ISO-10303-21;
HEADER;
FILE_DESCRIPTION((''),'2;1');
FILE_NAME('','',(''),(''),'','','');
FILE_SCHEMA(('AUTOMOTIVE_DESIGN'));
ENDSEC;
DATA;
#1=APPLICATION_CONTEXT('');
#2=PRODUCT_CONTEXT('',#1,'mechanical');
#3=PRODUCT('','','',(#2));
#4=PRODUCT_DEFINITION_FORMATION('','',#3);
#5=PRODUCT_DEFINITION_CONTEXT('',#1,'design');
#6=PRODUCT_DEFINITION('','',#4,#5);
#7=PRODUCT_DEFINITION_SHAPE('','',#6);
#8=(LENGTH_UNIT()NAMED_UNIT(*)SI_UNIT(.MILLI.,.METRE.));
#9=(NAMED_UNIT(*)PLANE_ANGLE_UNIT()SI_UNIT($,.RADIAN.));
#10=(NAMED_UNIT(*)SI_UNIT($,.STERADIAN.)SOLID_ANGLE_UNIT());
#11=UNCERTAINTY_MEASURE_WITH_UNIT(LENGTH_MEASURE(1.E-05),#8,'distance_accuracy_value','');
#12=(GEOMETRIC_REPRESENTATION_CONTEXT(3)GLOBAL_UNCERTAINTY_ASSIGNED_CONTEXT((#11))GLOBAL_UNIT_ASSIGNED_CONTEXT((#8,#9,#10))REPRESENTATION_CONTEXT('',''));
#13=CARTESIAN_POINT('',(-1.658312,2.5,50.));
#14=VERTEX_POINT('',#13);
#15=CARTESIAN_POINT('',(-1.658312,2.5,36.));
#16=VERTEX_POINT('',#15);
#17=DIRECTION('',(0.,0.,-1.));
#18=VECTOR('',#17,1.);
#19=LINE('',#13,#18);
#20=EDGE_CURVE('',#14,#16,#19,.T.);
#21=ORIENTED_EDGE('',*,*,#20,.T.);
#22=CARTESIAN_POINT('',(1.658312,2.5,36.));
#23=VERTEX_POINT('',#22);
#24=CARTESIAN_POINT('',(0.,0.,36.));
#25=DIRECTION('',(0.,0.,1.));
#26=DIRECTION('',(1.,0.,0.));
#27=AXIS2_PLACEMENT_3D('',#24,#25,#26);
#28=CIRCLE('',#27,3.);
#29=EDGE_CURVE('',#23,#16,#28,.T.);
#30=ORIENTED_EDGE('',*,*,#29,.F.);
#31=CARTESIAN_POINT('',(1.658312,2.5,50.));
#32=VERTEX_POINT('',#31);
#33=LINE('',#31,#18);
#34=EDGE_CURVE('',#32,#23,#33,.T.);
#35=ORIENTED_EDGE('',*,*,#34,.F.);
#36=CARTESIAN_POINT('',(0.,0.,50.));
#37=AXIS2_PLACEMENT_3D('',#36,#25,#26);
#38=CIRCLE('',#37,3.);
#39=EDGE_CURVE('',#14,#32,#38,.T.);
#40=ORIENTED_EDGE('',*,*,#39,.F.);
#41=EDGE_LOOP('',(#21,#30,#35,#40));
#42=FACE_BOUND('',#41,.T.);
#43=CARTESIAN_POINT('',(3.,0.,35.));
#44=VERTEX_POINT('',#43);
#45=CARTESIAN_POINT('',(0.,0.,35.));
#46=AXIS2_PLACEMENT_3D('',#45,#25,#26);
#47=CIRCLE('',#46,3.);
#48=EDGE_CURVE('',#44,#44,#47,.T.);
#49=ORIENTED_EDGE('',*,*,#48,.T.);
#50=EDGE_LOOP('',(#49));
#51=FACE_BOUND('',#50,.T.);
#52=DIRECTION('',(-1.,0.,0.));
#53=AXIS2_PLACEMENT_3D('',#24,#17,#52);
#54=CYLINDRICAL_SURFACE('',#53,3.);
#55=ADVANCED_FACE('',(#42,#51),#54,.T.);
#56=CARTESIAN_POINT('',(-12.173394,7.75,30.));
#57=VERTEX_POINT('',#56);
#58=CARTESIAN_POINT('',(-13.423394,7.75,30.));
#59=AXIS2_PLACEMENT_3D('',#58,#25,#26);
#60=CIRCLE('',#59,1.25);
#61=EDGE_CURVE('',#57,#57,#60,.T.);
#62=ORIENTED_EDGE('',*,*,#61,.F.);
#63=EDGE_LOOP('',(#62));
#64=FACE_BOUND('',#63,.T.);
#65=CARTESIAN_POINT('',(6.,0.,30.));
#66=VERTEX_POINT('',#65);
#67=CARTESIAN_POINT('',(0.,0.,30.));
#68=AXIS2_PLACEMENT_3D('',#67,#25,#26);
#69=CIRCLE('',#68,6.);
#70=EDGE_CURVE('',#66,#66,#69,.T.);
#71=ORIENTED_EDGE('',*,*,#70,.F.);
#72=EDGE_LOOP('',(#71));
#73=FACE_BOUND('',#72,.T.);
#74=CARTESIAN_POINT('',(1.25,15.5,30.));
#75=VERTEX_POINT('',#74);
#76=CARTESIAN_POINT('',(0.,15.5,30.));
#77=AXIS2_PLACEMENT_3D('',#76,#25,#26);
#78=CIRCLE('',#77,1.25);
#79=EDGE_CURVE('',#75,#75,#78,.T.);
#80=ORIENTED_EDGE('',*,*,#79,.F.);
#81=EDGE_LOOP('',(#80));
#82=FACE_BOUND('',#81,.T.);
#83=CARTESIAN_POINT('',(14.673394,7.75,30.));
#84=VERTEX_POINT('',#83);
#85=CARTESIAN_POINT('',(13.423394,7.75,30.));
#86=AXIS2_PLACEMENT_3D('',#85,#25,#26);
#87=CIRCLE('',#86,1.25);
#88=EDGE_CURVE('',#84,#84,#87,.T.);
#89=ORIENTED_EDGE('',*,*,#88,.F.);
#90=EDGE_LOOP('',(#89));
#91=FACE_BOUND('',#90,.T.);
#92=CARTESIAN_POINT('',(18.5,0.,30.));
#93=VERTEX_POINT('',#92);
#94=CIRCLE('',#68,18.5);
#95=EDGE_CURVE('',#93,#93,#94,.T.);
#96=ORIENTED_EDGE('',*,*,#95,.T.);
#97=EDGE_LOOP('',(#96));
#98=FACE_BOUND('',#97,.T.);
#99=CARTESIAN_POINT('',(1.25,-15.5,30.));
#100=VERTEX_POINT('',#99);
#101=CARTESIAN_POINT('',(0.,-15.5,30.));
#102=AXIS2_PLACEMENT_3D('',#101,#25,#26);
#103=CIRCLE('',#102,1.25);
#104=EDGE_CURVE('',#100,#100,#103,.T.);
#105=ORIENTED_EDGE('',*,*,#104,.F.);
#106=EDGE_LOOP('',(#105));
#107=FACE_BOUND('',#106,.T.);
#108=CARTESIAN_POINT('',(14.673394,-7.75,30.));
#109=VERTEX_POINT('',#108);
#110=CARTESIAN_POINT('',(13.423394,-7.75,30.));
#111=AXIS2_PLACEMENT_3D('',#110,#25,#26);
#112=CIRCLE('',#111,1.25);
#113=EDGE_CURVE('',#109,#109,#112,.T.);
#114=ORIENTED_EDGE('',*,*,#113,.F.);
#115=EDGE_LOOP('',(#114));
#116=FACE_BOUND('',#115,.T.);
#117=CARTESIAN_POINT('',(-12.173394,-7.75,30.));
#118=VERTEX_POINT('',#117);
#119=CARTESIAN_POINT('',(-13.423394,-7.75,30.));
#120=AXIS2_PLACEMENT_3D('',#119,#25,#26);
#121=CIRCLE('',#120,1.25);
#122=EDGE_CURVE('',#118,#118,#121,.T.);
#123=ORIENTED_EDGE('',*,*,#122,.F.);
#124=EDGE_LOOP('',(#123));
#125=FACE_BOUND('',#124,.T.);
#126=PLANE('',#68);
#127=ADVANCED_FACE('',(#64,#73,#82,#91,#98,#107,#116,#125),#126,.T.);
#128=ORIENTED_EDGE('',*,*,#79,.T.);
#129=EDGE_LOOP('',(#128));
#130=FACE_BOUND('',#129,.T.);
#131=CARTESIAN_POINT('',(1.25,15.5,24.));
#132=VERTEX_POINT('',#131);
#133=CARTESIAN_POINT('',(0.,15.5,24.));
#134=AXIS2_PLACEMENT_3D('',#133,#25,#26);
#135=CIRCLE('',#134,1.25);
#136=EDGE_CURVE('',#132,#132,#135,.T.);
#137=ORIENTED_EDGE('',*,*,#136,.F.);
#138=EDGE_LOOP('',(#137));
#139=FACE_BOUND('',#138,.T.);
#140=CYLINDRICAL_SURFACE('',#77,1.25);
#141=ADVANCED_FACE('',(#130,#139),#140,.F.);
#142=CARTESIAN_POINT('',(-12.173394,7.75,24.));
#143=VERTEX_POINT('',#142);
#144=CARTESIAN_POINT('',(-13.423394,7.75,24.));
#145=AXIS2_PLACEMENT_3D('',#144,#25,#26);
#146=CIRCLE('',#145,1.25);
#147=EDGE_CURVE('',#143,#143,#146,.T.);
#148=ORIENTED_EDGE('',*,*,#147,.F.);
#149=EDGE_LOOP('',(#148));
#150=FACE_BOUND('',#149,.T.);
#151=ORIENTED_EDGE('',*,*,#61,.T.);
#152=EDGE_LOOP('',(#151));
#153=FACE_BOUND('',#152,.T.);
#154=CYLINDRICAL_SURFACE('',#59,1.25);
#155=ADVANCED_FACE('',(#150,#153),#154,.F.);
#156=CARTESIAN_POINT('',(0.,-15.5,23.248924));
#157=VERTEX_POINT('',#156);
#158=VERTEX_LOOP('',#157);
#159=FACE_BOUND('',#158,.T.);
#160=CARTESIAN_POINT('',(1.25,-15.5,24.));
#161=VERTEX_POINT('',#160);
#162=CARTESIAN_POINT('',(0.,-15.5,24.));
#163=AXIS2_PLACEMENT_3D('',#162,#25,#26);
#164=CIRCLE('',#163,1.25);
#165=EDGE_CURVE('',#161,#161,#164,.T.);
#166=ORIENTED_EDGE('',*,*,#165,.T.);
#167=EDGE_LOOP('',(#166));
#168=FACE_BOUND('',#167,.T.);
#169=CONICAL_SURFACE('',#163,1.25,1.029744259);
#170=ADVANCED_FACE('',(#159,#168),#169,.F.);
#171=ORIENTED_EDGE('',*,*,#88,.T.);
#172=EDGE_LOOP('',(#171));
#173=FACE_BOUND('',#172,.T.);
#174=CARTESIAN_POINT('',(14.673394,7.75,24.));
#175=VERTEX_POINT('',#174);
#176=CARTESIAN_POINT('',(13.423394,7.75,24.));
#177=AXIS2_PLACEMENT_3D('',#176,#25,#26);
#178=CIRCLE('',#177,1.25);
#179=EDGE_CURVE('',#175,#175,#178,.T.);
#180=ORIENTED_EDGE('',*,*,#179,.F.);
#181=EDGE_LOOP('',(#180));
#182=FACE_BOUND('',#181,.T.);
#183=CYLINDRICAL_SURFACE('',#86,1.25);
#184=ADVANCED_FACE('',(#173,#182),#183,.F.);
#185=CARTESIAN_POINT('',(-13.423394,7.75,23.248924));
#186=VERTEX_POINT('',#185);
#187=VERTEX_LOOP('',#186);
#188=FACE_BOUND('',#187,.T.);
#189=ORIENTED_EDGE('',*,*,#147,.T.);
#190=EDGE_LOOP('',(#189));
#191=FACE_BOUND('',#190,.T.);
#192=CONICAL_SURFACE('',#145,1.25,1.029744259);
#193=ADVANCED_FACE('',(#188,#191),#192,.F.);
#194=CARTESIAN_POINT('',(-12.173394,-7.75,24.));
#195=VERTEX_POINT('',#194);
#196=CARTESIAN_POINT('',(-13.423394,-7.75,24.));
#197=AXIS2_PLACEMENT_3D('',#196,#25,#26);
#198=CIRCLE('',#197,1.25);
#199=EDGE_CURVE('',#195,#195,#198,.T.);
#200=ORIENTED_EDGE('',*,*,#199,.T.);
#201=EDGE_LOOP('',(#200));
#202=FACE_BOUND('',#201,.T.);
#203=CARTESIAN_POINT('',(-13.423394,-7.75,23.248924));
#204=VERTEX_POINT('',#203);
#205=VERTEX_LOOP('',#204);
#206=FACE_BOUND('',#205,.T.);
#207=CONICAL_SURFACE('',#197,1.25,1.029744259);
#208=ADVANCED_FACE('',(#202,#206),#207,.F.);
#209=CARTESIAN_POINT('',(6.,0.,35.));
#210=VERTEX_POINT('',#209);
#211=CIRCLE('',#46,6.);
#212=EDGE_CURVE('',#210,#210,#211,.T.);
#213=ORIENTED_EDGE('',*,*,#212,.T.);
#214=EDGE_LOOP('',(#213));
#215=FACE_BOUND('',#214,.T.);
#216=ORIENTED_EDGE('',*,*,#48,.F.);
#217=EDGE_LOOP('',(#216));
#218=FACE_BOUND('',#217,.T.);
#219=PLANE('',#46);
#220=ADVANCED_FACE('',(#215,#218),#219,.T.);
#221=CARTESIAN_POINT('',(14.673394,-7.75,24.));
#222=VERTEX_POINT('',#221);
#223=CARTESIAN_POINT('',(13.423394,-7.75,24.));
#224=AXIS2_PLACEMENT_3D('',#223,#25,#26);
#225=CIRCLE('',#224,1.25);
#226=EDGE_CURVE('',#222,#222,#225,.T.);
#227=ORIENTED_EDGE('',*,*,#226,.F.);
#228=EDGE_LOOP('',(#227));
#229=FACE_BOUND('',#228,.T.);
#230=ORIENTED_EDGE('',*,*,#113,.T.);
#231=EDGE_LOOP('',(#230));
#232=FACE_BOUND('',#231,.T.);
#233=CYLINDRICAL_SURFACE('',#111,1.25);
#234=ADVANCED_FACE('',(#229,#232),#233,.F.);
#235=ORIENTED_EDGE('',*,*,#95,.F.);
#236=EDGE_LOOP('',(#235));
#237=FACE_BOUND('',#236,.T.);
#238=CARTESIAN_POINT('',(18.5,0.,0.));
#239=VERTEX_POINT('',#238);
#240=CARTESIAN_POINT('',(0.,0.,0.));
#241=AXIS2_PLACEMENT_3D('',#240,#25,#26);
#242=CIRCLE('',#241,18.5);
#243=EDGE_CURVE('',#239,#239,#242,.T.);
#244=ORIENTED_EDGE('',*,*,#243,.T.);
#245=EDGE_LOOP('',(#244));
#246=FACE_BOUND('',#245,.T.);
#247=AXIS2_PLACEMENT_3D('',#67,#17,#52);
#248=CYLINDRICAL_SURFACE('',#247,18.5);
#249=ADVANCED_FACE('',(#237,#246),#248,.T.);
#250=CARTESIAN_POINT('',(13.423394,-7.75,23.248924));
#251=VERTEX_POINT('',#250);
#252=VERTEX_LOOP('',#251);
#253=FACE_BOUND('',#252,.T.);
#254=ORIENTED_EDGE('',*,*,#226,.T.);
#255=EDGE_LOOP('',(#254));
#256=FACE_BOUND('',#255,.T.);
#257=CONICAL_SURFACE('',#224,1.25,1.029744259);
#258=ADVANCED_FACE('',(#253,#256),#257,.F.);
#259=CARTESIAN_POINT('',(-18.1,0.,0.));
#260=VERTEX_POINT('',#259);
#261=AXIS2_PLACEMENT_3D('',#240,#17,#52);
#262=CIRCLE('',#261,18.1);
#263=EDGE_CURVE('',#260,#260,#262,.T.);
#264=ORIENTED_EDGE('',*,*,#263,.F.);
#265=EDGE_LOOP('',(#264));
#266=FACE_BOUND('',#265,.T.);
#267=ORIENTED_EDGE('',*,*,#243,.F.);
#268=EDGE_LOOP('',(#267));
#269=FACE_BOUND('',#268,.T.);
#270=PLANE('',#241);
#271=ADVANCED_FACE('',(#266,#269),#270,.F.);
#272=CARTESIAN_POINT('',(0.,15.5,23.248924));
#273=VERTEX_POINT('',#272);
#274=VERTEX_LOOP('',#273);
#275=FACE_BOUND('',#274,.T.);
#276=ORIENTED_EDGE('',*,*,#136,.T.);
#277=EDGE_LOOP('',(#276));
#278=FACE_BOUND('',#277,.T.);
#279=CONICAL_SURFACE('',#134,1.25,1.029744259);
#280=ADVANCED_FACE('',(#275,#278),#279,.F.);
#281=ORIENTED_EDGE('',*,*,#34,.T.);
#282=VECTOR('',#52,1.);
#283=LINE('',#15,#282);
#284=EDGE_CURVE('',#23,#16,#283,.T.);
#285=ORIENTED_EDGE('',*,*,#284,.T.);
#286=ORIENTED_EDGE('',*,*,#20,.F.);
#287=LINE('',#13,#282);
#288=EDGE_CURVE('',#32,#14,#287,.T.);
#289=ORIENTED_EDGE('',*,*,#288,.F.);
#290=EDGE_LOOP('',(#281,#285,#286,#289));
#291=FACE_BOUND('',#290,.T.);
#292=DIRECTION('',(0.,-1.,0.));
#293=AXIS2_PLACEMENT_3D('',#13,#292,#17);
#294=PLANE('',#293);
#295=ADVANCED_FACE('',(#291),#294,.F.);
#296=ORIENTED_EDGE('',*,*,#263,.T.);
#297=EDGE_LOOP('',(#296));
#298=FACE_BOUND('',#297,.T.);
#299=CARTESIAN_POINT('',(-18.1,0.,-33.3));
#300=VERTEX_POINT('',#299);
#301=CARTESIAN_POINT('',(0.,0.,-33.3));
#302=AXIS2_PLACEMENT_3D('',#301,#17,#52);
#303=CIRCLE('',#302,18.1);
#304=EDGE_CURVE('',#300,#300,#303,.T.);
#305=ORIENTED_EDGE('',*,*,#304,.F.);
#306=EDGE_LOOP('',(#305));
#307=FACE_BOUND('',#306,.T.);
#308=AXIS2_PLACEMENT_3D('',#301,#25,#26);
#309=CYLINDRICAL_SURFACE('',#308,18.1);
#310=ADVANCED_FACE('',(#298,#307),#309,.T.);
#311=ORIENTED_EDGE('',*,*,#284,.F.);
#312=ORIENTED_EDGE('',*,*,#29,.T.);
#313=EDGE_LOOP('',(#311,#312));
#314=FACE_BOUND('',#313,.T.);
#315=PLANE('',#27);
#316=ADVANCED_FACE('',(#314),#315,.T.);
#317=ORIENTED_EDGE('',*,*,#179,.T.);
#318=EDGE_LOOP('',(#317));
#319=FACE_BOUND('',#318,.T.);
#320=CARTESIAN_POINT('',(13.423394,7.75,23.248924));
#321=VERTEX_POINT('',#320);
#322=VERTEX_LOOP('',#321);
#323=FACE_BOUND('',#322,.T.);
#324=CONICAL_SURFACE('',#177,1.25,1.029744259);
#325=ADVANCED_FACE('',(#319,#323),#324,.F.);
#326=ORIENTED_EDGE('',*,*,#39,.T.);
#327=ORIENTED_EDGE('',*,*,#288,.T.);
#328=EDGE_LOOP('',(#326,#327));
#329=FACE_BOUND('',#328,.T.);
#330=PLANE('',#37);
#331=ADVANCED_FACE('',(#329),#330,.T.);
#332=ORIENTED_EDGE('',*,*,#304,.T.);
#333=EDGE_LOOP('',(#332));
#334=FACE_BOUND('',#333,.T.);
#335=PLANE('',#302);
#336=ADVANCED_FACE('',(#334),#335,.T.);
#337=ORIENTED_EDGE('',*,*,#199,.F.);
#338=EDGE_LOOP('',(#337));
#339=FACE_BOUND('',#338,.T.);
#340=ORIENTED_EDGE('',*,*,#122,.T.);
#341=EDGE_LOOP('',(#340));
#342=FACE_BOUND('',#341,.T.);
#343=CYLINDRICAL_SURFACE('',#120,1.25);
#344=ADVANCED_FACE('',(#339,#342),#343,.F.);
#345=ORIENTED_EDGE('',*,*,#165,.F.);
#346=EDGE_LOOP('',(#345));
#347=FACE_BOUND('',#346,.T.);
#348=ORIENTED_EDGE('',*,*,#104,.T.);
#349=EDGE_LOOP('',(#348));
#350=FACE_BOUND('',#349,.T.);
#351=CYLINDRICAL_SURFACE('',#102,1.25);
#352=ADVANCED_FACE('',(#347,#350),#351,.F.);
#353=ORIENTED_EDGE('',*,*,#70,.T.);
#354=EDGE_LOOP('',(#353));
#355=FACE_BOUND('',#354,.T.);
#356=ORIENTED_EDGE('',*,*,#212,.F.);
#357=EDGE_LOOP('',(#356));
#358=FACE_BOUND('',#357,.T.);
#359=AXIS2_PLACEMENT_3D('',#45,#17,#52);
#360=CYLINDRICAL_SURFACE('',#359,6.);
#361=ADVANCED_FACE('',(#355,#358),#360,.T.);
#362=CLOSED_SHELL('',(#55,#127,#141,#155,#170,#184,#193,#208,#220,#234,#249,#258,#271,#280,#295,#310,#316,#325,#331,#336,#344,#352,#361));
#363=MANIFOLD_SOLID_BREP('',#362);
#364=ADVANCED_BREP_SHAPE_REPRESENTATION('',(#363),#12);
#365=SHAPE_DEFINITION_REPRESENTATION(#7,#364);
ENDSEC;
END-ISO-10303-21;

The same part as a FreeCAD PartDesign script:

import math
import FreeCAD as App
import Part
import Sketcher

V = App.Vector

doc = App.newDocument("Part")
body = doc.addObject("PartDesign::Body", "Body")

# Sketch on XY plane
sketch1 = body.newObject("Sketcher::SketchObject", "Sketch")
sketch1.AttachmentSupport = (doc.getObject("XY_Plane"), [""])
sketch1.MapMode = "FlatFace"
sketch1.addGeometry(Part.Circle(V(0, 0, 0), V(0, 0, 1), 18.5), False)
sketch1.addConstraint(Sketcher.Constraint("Coincident", 0, 3, -1, 1))
sketch1.addConstraint(Sketcher.Constraint("Diameter", 0, 37.0))
pad1 = body.newObject("PartDesign::Pad", "Pad")
pad1.Profile = sketch1
pad1.Length = 30

# Sketch on XY plane
sketch2 = body.newObject("Sketcher::SketchObject", "Sketch001")
sketch2.AttachmentSupport = (doc.getObject("XY_Plane"), [""])
sketch2.MapMode = "FlatFace"
sketch2.addGeometry(Part.Circle(V(0, 0, 0), V(0, 0, 1), 18.1), False)
sketch2.addConstraint(Sketcher.Constraint("Coincident", 0, 3, -1, 1))
sketch2.addConstraint(Sketcher.Constraint("Diameter", 0, 36.2))
pad2 = body.newObject("PartDesign::Pad", "Pad001")
pad2.Profile = sketch2
pad2.Length = 33.3
pad2.Reversed = True

# Sketch on XY plane
sketch3 = body.newObject("Sketcher::SketchObject", "Sketch002")
sketch3.AttachmentSupport = (doc.getObject("XY_Plane"), [""])
sketch3.MapMode = "FlatFace"
sketch3.AttachmentOffset = App.Placement(V(0, 0, 30), App.Rotation())
sketch3.addGeometry(Part.Circle(V(0, 0, 0), V(0, 0, 1), 6), False)
sketch3.addConstraint(Sketcher.Constraint("Coincident", 0, 3, -1, 1))
sketch3.addConstraint(Sketcher.Constraint("Diameter", 0, 12.0))
pad3 = body.newObject("PartDesign::Pad", "Pad002")
pad3.Profile = sketch3
pad3.Length = 5

# Sketch on XY plane
sketch4 = body.newObject("Sketcher::SketchObject", "Sketch003")
sketch4.AttachmentSupport = (doc.getObject("XY_Plane"), [""])
sketch4.MapMode = "FlatFace"
sketch4.AttachmentOffset = App.Placement(V(0, 0, 35), App.Rotation())
sketch4.addGeometry(Part.Circle(V(0, 0, 0), V(0, 0, 1), 3), False)
sketch4.addConstraint(Sketcher.Constraint("Coincident", 0, 3, -1, 1))
sketch4.addConstraint(Sketcher.Constraint("Diameter", 0, 6.0))
pad4 = body.newObject("PartDesign::Pad", "Pad003")
pad4.Profile = sketch4
pad4.Length = 1

# Sketch on XY plane
sketch5 = body.newObject("Sketcher::SketchObject", "Sketch004")
sketch5.AttachmentSupport = (doc.getObject("XY_Plane"), [""])
sketch5.MapMode = "FlatFace"
sketch5.AttachmentOffset = App.Placement(V(0, 0, 36), App.Rotation())
sketch5.addGeometry(Part.LineSegment(V(1.658312, 2.5, 0), V(-1.658312, 2.5, 0)), False)
sketch5.addGeometry(Part.ArcOfCircle(Part.Circle(V(0, 0, 0), V(0, 0, 1), 3), math.radians(123.55731), math.radians(416.44269)), False)
sketch5.addConstraint(Sketcher.Constraint("Coincident", 0, 1, 1, 2))
sketch5.addConstraint(Sketcher.Constraint("Coincident", 1, 1, 0, 2))
sketch5.addConstraint(Sketcher.Constraint("Horizontal", 0))
sketch5.addConstraint(Sketcher.Constraint("Coincident", 1, 3, -1, 1))
sketch5.addConstraint(Sketcher.Constraint("Radius", 1, 3.0))
sketch5.addConstraint(Sketcher.Constraint("DistanceY", -1, 1, 0, 1, 2.5))
pad5 = body.newObject("PartDesign::Pad", "Pad004")
pad5.Profile = sketch5
pad5.Length = 14

# Sketch on XY plane
sketch6 = body.newObject("Sketcher::SketchObject", "Sketch005")
sketch6.AttachmentSupport = (doc.getObject("XY_Plane"), [""])
sketch6.MapMode = "FlatFace"
sketch6.AttachmentOffset = App.Placement(V(0, 0, 30), App.Rotation())
sketch6.addGeometry(Part.Circle(V(0, 15.5, 0), V(0, 0, 1), 1.25), False)
sketch6.addGeometry(Part.Circle(V(13.423394, 7.75, 0), V(0, 0, 1), 1.25), False)
sketch6.addGeometry(Part.Circle(V(13.423394, -7.75, 0), V(0, 0, 1), 1.25), False)
sketch6.addGeometry(Part.Circle(V(0, -15.5, 0), V(0, 0, 1), 1.25), False)
sketch6.addGeometry(Part.Circle(V(-13.423394, -7.75, 0), V(0, 0, 1), 1.25), False)
sketch6.addGeometry(Part.Circle(V(-13.423394, 7.75, 0), V(0, 0, 1), 1.25), False)
sketch6.addConstraint(Sketcher.Constraint("Equal", 0, 1))
sketch6.addConstraint(Sketcher.Constraint("Equal", 1, 2))
sketch6.addConstraint(Sketcher.Constraint("Equal", 2, 3))
sketch6.addConstraint(Sketcher.Constraint("Equal", 3, 4))
sketch6.addConstraint(Sketcher.Constraint("Equal", 4, 5))
sketch6.addConstraint(Sketcher.Constraint("Symmetric", 0, 3, 3, 3, -1, 1))
sketch6.addConstraint(Sketcher.Constraint("Symmetric", 1, 3, 4, 3, -1, 1))
sketch6.addConstraint(Sketcher.Constraint("Symmetric", 2, 3, 5, 3, -1, 1))
sketch6.addConstraint(Sketcher.Constraint("Symmetric", 2, 3, 4, 3, -2))
sketch6.addConstraint(Sketcher.Constraint("PointOnObject", 0, 3, -2))
sketch6.addConstraint(Sketcher.Constraint("Diameter", 0, 2.5))
sketch6.addConstraint(Sketcher.Constraint("DistanceY", 3, 3, 0, 3, 31.0))
sketch6.addConstraint(Sketcher.Constraint("DistanceY", 2, 3, 1, 3, 15.5))
sketch6.addConstraint(Sketcher.Constraint("DistanceX", -1, 1, 1, 3, 13.423394))
doc.recompute()
hole = body.newObject("PartDesign::Hole", "Hole")
hole.Profile = sketch6
hole.ThreadType = "None"
hole.Diameter = 2.5
hole.DepthType = "Dimension"
hole.Depth = 6
hole.DrillPoint = "Angled"
hole.DrillPointAngle = 118

doc.recompute()
